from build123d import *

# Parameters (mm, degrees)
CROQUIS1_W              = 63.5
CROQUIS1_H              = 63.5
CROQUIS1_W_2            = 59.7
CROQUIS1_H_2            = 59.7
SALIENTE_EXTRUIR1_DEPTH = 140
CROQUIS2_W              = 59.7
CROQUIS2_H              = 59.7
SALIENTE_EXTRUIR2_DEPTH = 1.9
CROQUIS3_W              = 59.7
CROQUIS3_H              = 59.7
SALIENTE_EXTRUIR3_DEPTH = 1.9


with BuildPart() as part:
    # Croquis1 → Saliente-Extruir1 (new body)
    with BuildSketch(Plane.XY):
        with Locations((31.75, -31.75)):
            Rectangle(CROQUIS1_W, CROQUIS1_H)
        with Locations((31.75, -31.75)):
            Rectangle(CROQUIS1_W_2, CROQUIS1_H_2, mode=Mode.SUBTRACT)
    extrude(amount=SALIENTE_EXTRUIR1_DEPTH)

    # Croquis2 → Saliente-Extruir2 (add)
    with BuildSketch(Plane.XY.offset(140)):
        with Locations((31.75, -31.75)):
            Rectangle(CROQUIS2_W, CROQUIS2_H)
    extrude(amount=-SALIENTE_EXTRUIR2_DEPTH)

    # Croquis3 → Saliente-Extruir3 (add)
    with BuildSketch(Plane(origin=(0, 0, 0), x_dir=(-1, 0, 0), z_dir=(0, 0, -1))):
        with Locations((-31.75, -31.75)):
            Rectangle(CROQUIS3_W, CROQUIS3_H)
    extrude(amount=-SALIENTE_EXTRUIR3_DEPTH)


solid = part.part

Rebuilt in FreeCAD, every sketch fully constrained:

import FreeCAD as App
import Part
import Sketcher


def add_polygon(sketch, points):
    """Adds a closed chain of lines whose ends are joined by coincident constraints."""
    first, n = sketch.GeometryCount, len(points)
    for a, b in zip(points, points[1:] + points[:1]):
        sketch.addGeometry(Part.LineSegment(App.Vector(*a, 0), App.Vector(*b, 0)), False)
    for i in range(n):
        sketch.addConstraint(Sketcher.Constraint("Coincident", first + i, 2, first + (i + 1) % n, 1))

doc = App.newDocument("Part")
params = doc.addObject("Spreadsheet::Sheet", "Params")
for row, (alias, value) in enumerate([
    ("sketch1_width", "63.5 mm"),
    ("sketch1_width2", "59.7 mm"),
    ("pad1_length", "140 mm"),
    ("sketch2_width", "59.7 mm"),
    ("pad2_length", "1.9 mm"),
    ("sketch3_width", "59.7 mm"),
    ("pad3_length", "1.9 mm"),
], start=1):
    params.set(f"A{row}", alias)
    params.set(f"B{row}", "=" + value)
    params.setAlias(f"B{row}", alias)

body = doc.addObject("PartDesign::Body", "Body")

sketch1 = body.newObject("Sketcher::SketchObject", "Sketch")
sketch1.AttachmentSupport = (doc.getObject("XY_Plane"), [""])
sketch1.MapMode = "FlatFace"
add_polygon(sketch1, [(0, 0), (0, -64), (64, -64), (64, 0)])
add_polygon(sketch1, [(62, -62), (2, -62), (2, -2), (62, -2)])
sketch1.addConstraint(Sketcher.Constraint("Vertical", 0))
sketch1.addConstraint(Sketcher.Constraint("Horizontal", 1))
sketch1.addConstraint(Sketcher.Constraint("Vertical", 2))
sketch1.addConstraint(Sketcher.Constraint("Horizontal", 3))
sketch1.addConstraint(Sketcher.Constraint("Horizontal", 4))
sketch1.addConstraint(Sketcher.Constraint("Vertical", 5))
sketch1.addConstraint(Sketcher.Constraint("Horizontal", 6))
sketch1.addConstraint(Sketcher.Constraint("Vertical", 7))
sketch1.addConstraint(Sketcher.Constraint("Coincident", 3, 2, -1, 1))
sketch1.addConstraint(Sketcher.Constraint("Equal", 3, 0))
sketch1.addConstraint(Sketcher.Constraint("Equal", 6, 5))
sketch1.addConstraint(Sketcher.Constraint("DistanceX", 1, 1, 1, 2, 63.5))
sketch1.addConstraint(Sketcher.Constraint("DistanceX", 4, 2, 4, 1, 59.7))
sketch1.addConstraint(Sketcher.Constraint("DistanceX", -1, 1, 4, 2, 1.9))
sketch1.addConstraint(Sketcher.Constraint("DistanceY", 4, 2, -1, 1, 61.6))
sketch1.setExpression("Constraints[19]", "Params.sketch1_width")
sketch1.setExpression("Constraints[20]", "Params.sketch1_width2")
pad1 = body.newObject("PartDesign::Pad", "Pad")
pad1.Profile = sketch1
pad1.setExpression("Length", "Params.pad1_length")

sketch2 = body.newObject("Sketcher::SketchObject", "Sketch001")
sketch2.AttachmentSupport = (doc.getObject("XY_Plane"), [""])
sketch2.MapMode = "FlatFace"
sketch2.AttachmentOffset = App.Placement(App.Vector(0, 0, 140), App.Rotation())
add_polygon(sketch2, [(2, -2), (2, -62), (62, -62), (62, -2)])
sketch2.addConstraint(Sketcher.Constraint("Vertical", 0))
sketch2.addConstraint(Sketcher.Constraint("Horizontal", 1))
sketch2.addConstraint(Sketcher.Constraint("Vertical", 2))
sketch2.addConstraint(Sketcher.Constraint("Horizontal", 3))
sketch2.addConstraint(Sketcher.Constraint("Equal", 3, 0))
sketch2.addConstraint(Sketcher.Constraint("DistanceX", 1, 1, 1, 2, 59.7))
sketch2.addConstraint(Sketcher.Constraint("DistanceX", -1, 1, 0, 2, 1.9))
sketch2.addConstraint(Sketcher.Constraint("DistanceY", 0, 2, -1, 1, 61.6))
sketch2.setExpression("Constraints[9]", "Params.sketch2_width")
pad2 = body.newObject("PartDesign::Pad", "Pad001")
pad2.Profile = sketch2
pad2.setExpression("Length", "Params.pad2_length")
pad2.Reversed = True

sketch3 = body.newObject("Sketcher::SketchObject", "Sketch002")
sketch3.AttachmentSupport = (doc.getObject("XY_Plane"), [""])
sketch3.MapMode = "FlatFace"
add_polygon(sketch3, [(62, -2), (62, -62), (2, -62), (2, -2)])
sketch3.addConstraint(Sketcher.Constraint("Vertical", 0))
sketch3.addConstraint(Sketcher.Constraint("Horizontal", 1))
sketch3.addConstraint(Sketcher.Constraint("Vertical", 2))
sketch3.addConstraint(Sketcher.Constraint("Horizontal", 3))
sketch3.addConstraint(Sketcher.Constraint("Equal", 3, 0))
sketch3.addConstraint(Sketcher.Constraint("DistanceX", 1, 2, 1, 1, 59.7))
sketch3.addConstraint(Sketcher.Constraint("DistanceX", -1, 1, 0, 2, 61.6))
sketch3.addConstraint(Sketcher.Constraint("DistanceY", 0, 2, -1, 1, 61.6))
sketch3.setExpression("Constraints[9]", "Params.sketch3_width")
pad3 = body.newObject("PartDesign::Pad", "Pad002")
pad3.Profile = sketch3
pad3.setExpression("Length", "Params.pad3_length")

doc.recompute()
